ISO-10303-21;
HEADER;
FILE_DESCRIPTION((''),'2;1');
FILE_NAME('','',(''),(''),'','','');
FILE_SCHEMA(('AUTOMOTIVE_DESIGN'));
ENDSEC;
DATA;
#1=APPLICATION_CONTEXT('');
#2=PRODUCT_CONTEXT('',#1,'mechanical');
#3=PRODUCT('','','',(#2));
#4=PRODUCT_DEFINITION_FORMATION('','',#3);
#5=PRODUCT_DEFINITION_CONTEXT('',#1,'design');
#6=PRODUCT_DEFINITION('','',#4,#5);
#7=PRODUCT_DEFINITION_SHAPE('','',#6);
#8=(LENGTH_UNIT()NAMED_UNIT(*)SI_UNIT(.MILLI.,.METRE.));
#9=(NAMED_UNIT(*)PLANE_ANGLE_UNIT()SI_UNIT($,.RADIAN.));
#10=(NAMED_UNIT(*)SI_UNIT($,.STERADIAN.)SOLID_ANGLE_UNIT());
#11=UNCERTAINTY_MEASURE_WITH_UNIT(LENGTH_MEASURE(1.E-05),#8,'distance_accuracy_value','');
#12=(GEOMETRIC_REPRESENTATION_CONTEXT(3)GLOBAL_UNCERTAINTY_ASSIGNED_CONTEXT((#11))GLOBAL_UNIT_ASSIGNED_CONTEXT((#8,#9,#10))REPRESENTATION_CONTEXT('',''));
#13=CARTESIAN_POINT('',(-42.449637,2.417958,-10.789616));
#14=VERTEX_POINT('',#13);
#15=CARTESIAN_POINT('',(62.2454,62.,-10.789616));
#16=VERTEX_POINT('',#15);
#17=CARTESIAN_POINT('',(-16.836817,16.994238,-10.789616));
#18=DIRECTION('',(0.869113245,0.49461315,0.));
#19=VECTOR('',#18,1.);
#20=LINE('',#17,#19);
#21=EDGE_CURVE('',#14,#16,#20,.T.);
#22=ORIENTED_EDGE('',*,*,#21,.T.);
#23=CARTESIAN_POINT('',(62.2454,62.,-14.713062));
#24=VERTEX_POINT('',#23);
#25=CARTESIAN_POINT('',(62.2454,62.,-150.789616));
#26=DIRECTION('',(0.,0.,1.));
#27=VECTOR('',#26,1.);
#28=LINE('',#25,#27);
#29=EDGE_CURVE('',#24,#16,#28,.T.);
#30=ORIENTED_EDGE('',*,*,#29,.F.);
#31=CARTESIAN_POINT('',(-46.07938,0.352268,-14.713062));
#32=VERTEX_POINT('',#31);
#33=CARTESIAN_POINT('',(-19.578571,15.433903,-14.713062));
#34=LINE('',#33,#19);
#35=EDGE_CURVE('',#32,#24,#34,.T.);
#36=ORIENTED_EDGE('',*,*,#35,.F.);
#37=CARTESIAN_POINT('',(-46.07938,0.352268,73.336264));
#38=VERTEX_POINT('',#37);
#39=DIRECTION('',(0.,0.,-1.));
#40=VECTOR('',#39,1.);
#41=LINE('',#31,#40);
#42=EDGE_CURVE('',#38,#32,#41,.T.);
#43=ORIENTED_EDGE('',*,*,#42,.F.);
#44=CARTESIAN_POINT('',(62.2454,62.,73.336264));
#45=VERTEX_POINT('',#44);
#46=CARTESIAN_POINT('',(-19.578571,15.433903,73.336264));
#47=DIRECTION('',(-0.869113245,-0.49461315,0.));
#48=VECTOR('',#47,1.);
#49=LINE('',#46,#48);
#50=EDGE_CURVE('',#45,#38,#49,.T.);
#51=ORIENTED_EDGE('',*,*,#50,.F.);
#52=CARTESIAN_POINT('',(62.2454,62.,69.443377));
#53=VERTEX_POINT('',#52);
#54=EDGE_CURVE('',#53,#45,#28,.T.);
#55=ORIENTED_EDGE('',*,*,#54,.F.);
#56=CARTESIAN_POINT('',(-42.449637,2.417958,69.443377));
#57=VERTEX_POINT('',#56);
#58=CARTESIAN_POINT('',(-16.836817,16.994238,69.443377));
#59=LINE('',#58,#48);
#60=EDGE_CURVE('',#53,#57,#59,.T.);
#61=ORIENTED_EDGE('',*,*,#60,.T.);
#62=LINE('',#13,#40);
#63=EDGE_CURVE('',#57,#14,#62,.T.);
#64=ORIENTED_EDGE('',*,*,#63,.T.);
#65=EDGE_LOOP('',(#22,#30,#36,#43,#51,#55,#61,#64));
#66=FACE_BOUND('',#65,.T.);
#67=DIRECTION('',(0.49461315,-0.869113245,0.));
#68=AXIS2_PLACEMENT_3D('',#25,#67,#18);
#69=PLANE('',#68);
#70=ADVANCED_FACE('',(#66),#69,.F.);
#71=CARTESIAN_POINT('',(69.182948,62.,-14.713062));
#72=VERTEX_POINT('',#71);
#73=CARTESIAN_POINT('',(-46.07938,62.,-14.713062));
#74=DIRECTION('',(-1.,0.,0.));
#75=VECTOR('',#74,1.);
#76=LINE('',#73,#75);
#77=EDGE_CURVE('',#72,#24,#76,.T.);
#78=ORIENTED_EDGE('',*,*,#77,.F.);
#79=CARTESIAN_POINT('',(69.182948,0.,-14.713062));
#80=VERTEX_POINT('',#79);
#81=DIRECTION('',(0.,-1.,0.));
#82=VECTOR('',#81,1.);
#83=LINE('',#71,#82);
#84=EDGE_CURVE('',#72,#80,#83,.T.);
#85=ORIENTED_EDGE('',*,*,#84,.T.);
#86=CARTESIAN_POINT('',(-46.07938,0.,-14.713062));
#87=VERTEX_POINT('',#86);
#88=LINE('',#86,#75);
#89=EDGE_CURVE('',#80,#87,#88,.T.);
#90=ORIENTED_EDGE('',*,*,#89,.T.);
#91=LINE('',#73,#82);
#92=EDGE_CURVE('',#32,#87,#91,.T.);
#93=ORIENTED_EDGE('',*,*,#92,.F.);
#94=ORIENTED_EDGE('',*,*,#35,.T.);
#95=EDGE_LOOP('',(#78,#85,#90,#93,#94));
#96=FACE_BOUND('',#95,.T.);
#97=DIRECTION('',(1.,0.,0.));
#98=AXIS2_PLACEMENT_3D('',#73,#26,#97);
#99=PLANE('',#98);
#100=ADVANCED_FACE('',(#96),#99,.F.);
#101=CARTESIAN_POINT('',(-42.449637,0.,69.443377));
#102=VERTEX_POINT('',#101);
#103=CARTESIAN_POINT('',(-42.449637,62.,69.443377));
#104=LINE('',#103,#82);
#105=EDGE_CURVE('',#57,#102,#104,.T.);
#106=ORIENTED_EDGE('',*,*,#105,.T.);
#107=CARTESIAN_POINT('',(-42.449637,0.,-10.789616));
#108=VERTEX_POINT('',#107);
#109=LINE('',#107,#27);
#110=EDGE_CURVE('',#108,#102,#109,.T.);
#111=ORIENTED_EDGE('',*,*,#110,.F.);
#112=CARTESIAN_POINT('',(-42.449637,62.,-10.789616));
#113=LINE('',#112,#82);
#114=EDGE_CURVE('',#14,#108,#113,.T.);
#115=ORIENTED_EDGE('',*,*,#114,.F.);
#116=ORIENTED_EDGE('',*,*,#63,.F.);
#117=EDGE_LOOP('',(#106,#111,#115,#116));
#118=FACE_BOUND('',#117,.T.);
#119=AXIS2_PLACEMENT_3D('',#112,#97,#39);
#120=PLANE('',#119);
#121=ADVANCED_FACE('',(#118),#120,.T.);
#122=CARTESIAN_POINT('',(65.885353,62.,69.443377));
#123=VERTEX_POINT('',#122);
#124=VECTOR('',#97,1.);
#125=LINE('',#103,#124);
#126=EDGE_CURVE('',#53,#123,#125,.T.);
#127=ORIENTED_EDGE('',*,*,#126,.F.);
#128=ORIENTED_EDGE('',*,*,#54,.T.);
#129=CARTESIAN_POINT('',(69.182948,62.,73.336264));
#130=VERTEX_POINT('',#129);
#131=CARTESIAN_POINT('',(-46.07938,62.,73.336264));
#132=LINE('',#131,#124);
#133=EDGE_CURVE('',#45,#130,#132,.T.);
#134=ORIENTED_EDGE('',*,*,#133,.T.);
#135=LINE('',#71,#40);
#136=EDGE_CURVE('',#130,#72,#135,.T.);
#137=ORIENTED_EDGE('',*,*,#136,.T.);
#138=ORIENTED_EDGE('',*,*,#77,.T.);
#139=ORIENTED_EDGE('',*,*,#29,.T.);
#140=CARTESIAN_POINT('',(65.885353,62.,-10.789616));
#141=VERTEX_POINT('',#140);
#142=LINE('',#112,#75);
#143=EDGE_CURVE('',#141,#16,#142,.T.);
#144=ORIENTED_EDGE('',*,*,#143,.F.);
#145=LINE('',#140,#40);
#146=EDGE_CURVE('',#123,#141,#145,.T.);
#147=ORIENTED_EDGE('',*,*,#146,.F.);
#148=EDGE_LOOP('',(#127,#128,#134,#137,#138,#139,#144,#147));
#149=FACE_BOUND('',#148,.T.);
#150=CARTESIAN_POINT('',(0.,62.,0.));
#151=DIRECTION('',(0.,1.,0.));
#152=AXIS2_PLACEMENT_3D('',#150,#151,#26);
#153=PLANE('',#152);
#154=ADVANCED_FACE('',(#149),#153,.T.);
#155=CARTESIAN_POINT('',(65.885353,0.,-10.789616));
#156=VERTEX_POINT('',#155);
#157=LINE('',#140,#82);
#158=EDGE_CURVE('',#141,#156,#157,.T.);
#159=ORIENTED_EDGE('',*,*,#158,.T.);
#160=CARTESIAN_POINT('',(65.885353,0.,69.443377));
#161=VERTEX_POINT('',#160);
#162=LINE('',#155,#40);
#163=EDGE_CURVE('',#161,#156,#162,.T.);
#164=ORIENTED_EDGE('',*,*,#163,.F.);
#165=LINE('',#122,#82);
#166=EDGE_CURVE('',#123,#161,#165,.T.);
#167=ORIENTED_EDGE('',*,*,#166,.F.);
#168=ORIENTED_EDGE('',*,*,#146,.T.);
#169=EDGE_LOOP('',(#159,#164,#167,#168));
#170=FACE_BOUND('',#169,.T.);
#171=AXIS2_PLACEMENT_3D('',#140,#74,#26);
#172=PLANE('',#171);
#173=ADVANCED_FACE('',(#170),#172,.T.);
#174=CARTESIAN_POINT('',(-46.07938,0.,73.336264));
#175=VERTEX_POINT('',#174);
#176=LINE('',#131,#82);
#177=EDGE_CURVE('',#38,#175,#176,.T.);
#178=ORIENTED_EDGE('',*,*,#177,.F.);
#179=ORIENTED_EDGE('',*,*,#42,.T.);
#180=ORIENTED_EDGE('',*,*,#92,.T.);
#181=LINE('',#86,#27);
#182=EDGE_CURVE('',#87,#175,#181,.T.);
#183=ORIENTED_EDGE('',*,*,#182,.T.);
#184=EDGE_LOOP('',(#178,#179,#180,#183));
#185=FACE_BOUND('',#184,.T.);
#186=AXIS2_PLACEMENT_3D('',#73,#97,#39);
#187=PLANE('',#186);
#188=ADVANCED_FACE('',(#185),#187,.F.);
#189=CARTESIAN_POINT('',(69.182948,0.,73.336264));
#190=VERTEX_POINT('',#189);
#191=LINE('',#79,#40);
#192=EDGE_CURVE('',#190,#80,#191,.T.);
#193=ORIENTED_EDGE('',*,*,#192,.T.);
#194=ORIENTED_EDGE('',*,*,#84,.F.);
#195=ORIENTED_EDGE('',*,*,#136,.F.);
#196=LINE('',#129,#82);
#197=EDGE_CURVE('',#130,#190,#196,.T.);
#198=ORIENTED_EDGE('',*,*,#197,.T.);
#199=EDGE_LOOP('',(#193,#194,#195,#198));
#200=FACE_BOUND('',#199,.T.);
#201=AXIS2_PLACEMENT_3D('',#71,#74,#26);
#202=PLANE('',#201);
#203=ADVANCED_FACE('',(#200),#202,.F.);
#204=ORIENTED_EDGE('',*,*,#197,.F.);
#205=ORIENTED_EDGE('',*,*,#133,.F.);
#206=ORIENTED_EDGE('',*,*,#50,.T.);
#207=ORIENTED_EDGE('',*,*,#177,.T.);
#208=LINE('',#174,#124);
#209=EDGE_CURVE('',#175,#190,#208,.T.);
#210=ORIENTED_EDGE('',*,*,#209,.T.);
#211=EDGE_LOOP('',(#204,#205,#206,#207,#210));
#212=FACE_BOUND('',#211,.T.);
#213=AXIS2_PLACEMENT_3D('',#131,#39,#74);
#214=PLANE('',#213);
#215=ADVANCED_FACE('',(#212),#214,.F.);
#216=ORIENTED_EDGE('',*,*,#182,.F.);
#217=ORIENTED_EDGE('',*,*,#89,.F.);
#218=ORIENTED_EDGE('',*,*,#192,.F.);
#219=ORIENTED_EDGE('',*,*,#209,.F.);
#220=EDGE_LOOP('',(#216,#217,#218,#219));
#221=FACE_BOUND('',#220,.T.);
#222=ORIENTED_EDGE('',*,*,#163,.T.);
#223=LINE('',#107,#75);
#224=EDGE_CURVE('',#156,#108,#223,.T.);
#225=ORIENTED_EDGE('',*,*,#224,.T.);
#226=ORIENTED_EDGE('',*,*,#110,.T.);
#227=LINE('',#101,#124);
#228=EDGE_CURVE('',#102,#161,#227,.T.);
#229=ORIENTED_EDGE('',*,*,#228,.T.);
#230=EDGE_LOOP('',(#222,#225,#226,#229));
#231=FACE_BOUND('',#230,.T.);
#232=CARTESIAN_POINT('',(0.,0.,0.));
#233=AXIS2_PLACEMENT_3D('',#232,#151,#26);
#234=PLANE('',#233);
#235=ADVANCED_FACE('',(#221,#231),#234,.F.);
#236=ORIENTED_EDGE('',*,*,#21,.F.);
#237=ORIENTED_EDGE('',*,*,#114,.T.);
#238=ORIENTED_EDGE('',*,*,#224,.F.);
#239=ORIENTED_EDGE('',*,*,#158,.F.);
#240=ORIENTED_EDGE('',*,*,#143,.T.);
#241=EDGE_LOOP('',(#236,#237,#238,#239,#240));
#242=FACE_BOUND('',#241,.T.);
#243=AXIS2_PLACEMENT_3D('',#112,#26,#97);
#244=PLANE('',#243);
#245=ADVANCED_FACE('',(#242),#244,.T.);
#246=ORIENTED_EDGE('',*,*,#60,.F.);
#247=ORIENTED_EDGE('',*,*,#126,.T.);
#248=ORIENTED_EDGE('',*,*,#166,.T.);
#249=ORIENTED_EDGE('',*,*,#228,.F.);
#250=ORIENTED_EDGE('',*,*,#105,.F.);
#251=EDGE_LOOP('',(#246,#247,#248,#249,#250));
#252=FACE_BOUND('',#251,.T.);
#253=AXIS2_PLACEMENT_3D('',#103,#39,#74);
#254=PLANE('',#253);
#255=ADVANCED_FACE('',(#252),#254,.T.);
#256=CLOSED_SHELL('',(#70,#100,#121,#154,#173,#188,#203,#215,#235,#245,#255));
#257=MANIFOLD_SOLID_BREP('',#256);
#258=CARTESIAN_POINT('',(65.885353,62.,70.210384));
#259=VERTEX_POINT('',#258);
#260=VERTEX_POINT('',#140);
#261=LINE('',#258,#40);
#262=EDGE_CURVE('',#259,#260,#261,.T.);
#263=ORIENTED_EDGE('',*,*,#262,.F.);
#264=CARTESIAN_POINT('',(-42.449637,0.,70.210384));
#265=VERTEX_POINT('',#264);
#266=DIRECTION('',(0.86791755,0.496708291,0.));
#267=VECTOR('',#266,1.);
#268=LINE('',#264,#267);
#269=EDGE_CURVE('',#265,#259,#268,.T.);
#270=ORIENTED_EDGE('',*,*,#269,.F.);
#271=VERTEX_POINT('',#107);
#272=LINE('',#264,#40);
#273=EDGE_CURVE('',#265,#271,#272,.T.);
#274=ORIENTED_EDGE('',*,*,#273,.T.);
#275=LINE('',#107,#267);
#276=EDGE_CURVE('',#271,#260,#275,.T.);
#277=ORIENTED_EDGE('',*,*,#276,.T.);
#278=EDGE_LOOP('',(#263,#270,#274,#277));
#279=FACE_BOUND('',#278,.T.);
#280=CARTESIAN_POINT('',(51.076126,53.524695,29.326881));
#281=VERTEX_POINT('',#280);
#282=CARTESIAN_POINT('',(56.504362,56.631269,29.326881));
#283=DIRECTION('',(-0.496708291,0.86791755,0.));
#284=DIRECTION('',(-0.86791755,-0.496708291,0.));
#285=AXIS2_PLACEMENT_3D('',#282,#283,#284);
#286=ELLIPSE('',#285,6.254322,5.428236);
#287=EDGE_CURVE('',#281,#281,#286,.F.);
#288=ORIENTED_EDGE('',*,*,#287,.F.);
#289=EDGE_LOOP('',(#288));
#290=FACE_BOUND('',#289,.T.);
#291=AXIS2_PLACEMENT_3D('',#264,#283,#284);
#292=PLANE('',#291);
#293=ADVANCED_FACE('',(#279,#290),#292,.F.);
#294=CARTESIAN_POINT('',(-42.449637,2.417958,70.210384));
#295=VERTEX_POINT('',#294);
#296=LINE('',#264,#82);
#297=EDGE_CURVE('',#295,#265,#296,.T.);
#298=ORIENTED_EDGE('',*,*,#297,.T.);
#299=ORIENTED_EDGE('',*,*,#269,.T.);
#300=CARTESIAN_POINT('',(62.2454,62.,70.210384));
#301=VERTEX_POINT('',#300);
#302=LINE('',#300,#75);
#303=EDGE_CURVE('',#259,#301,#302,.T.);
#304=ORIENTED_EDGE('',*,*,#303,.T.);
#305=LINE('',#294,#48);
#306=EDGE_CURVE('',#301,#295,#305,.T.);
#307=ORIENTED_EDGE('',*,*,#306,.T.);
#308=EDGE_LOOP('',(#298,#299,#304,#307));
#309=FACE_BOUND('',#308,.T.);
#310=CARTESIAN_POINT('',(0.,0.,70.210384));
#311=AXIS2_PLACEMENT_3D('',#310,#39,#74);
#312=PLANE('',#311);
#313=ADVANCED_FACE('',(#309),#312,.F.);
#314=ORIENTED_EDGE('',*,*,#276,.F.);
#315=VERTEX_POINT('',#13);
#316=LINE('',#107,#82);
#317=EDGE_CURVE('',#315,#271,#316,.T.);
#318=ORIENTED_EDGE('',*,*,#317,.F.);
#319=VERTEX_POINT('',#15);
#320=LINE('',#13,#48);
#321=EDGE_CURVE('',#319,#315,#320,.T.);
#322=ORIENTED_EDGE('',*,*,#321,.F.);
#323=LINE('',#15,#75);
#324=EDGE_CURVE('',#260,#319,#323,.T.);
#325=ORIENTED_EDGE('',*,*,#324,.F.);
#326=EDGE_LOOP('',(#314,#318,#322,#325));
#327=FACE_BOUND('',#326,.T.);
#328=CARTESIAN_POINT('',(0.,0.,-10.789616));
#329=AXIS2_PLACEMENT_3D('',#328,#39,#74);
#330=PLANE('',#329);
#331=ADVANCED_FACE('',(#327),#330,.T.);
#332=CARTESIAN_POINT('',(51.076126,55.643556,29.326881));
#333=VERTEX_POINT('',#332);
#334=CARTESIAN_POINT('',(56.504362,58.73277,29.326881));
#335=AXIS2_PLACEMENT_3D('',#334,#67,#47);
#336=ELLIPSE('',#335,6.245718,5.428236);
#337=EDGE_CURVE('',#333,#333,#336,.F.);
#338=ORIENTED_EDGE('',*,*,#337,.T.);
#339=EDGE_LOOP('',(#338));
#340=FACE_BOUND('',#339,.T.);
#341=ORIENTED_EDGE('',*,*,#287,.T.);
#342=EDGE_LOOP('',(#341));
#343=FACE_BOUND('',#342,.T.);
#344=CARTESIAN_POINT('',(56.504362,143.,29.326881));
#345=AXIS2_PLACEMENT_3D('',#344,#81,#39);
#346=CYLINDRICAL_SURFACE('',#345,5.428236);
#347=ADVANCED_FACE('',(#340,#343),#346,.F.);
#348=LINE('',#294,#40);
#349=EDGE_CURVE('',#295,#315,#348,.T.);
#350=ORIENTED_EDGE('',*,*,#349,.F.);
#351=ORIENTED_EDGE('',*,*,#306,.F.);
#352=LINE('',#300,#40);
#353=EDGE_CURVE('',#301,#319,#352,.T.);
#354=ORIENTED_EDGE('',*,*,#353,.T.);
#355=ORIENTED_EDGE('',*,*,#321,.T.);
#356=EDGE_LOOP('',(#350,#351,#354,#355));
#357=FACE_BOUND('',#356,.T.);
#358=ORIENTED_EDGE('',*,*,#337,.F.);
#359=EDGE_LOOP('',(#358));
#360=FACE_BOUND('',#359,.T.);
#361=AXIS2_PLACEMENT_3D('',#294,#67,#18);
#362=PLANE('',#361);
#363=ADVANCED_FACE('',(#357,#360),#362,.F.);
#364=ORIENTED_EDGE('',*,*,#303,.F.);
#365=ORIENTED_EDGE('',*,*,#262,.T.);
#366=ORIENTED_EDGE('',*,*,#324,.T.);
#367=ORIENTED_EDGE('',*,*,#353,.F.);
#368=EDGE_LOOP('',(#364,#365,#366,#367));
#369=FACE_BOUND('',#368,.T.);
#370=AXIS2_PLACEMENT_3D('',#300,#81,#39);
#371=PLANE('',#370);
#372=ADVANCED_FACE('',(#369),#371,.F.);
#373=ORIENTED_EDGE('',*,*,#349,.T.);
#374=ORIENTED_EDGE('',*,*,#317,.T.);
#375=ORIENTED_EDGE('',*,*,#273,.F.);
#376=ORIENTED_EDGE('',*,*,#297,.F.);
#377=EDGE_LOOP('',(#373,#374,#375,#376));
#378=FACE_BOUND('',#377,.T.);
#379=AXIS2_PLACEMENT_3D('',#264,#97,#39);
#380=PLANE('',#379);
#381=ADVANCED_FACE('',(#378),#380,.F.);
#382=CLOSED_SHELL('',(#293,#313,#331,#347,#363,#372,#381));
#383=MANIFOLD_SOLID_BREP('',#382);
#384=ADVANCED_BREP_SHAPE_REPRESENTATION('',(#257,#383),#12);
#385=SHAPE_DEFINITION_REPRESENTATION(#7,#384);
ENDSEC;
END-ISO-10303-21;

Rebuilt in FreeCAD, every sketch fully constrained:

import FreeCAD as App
import Part
import Sketcher
Q = App.Units.Quantity

doc = App.newDocument("Part")
body = doc.addObject("PartDesign::Body", "Body")

# Sketch on XZ plane
sketch1 = body.newObject("Sketcher::SketchObject", "Sketch")
sketch1.AttachmentSupport = (doc.getObject("XZ_Plane"), [""])
sketch1.MapMode = "FlatFace"
sketch1.addGeometry(Part.LineSegment(App.Vector(-46, -15, 0), App.Vector(-46, 73, 0)), False)
sketch1.addGeometry(Part.LineSegment(App.Vector(-46, 73, 0), App.Vector(69, 73, 0)), False)
sketch1.addGeometry(Part.LineSegment(App.Vector(69, 73, 0), App.Vector(69, -15, 0)), False)
sketch1.addGeometry(Part.LineSegment(App.Vector(69, -15, 0), App.Vector(-46, -15, 0)), False)
sketch1.addGeometry(Part.LineSegment(App.Vector(66, 69, 0), App.Vector(-42, 69, 0)), False)
sketch1.addGeometry(Part.LineSegment(App.Vector(-42, 69, 0), App.Vector(-42, -11, 0)), False)
sketch1.addGeometry(Part.LineSegment(App.Vector(-42, -11, 0), App.Vector(66, -11, 0)), False)
sketch1.addGeometry(Part.LineSegment(App.Vector(66, -11, 0), App.Vector(66, 69, 0)), False)
sketch1.addConstraint(Sketcher.Constraint("Coincident", 0, 2, 1, 1))
sketch1.addConstraint(Sketcher.Constraint("Coincident", 1, 2, 2, 1))
sketch1.addConstraint(Sketcher.Constraint("Coincident", 2, 2, 3, 1))
sketch1.addConstraint(Sketcher.Constraint("Coincident", 3, 2, 0, 1))
sketch1.addConstraint(Sketcher.Constraint("Coincident", 4, 2, 5, 1))
sketch1.addConstraint(Sketcher.Constraint("Coincident", 5, 2, 6, 1))
sketch1.addConstraint(Sketcher.Constraint("Coincident", 6, 2, 7, 1))
sketch1.addConstraint(Sketcher.Constraint("Coincident", 7, 2, 4, 1))
sketch1.addConstraint(Sketcher.Constraint("Vertical", 0))
sketch1.addConstraint(Sketcher.Constraint("Horizontal", 1))
sketch1.addConstraint(Sketcher.Constraint("Vertical", 2))
sketch1.addConstraint(Sketcher.Constraint("Horizontal", 3))
sketch1.addConstraint(Sketcher.Constraint("Horizontal", 4))
sketch1.addConstraint(Sketcher.Constraint("Vertical", 5))
sketch1.addConstraint(Sketcher.Constraint("Horizontal", 6))
sketch1.addConstraint(Sketcher.Constraint("Vertical", 7))
sketch1.addConstraint(Sketcher.Constraint("DistanceX", 1, 1, 1, 2, Q("115.262329 mm")))
sketch1.addConstraint(Sketcher.Constraint("DistanceX", 4, 2, 4, 1, Q("108.334991 mm")))
sketch1.addConstraint(Sketcher.Constraint("DistanceY", 0, 1, 0, 2, Q("88.049326 mm")))
sketch1.addConstraint(Sketcher.Constraint("DistanceY", 5, 2, 5, 1, Q("80.232993 mm")))
sketch1.addConstraint(Sketcher.Constraint("DistanceX", 0, 2, -1, 1, Q("46.07938 mm")))
sketch1.addConstraint(Sketcher.Constraint("DistanceY", 3, 2, 4, 2, Q("84.156439 mm")))
sketch1.addConstraint(Sketcher.Constraint("DistanceY", -1, 1, 0, 2, Q("73.336264 mm")))
sketch1.addConstraint(Sketcher.Constraint("DistanceX", 4, 2, -1, 1, Q("42.449637 mm")))
pad1 = body.newObject("PartDesign::Pad", "Pad")
pad1.Profile = sketch1
pad1.Length = 62
pad1.Reversed = True

# Sketch on XY plane
sketch2 = body.newObject("Sketcher::SketchObject", "Sketch001")
sketch2.AttachmentSupport = (doc.getObject("XY_Plane"), [""])
sketch2.MapMode = "FlatFace"
sketch2.AttachmentOffset = App.Placement(App.Vector(0, 0, -10.789616), App.Rotation())
sketch2.addGeometry(Part.LineSegment(App.Vector(-48, -1, 0), App.Vector(62, 62, 0)), False)
sketch2.addGeometry(Part.LineSegment(App.Vector(62, 62, 0), App.Vector(74, 72, 0)), False)
sketch2.addGeometry(Part.LineSegment(App.Vector(74, 72, 0), App.Vector(-65, 83, 0)), False)
sketch2.addGeometry(Part.LineSegment(App.Vector(-65, 83, 0), App.Vector(-48, -1, 0)), False)
sketch2.addConstraint(Sketcher.Constraint("Coincident", 0, 2, 1, 1))
sketch2.addConstraint(Sketcher.Constraint("Coincident", 1, 2, 2, 1))
sketch2.addConstraint(Sketcher.Constraint("Coincident", 2, 2, 3, 1))
sketch2.addConstraint(Sketcher.Constraint("Coincident", 3, 2, 0, 1))
sketch2.addConstraint(Sketcher.Constraint("DistanceY", -1, 1, 0, 2, Q("62 mm")))
sketch2.addConstraint(Sketcher.Constraint("DistanceX", -1, 1, 0, 2, Q("62.2454 mm")))
sketch2.addConstraint(Sketcher.Constraint("DistanceY", -1, 1, 2, 2, Q("83.1621 mm")))
sketch2.addConstraint(Sketcher.Constraint("Distance", 2, Q("139.24927 mm")))
sketch2.addConstraint(Sketcher.Constraint("DistanceX", -1, 1, 1, 2, Q("74.178742 mm")))
sketch2.addConstraint(Sketcher.Constraint("DistanceY", 3, 2, -1, 1, Q("0.73448 mm")))
sketch2.addConstraint(Sketcher.Constraint("DistanceX", 2, 2, 1, 2, Q("138.772189 mm")))
sketch2.addConstraint(Sketcher.Constraint("DistanceX", 2, 2, 3, 2, Q("16.604481 mm")))
pocket1 = body.newObject("PartDesign::Pocket", "Pocket")
pocket1.Profile = sketch2
pocket1.Type = "ThroughAll"
pocket1.Midplane = True
body2 = doc.addObject("PartDesign::Body", "Body001")

# Sketch on XY plane
sketch3 = body2.newObject("Sketcher::SketchObject", "Sketch002")
sketch3.AttachmentSupport = (doc.getObject("XY_Plane001"), [""])
sketch3.MapMode = "FlatFace"
sketch3.AttachmentOffset = App.Placement(App.Vector(0, 0, -10.789616), App.Rotation())
sketch3.addGeometry(Part.LineSegment(App.Vector(-42.4, 0, 0), App.Vector(65.9, 62, 0)), False)
sketch3.addGeometry(Part.LineSegment(App.Vector(65.9, 62, 0), App.Vector(62.2, 62, 0)), False)
sketch3.addGeometry(Part.LineSegment(App.Vector(62.2, 62, 0), App.Vector(-42.4, 2.4, 0)), False)
sketch3.addGeometry(Part.LineSegment(App.Vector(-42.4, 2.4, 0), App.Vector(-42.4, 0, 0)), False)
sketch3.addConstraint(Sketcher.Constraint("Coincident", 0, 2, 1, 1))
sketch3.addConstraint(Sketcher.Constraint("Coincident", 1, 2, 2, 1))
sketch3.addConstraint(Sketcher.Constraint("Coincident", 2, 2, 3, 1))
sketch3.addConstraint(Sketcher.Constraint("Coincident", 3, 2, 0, 1))
sketch3.addConstraint(Sketcher.Constraint("Horizontal", 1))
sketch3.addConstraint(Sketcher.Constraint("Vertical", 3))
sketch3.addConstraint(Sketcher.Constraint("PointOnObject", 3, 2, -1))
sketch3.addConstraint(Sketcher.Constraint("DistanceY", -1, 1, 0, 2, Q("62 mm")))
sketch3.addConstraint(Sketcher.Constraint("DistanceX", -1, 1, 1, 2, Q("62.2454 mm")))
sketch3.addConstraint(Sketcher.Constraint("DistanceX", 1, 2, 1, 1, Q("3.639954 mm")))
sketch3.addConstraint(Sketcher.Constraint("DistanceY", 3, 2, 3, 1, Q("2.417958 mm")))
sketch3.addConstraint(Sketcher.Constraint("DistanceX", 2, 2, 0, 2, Q("108.334991 mm")))
pad2 = body2.newObject("PartDesign::Pad", "Pad001")
pad2.Profile = sketch3
pad2.Length = 81

# Sketch on XZ plane
sketch4 = body2.newObject("Sketcher::SketchObject", "Sketch003")
sketch4.AttachmentSupport = (doc.getObject("XZ_Plane001"), [""])
sketch4.MapMode = "FlatFace"
sketch4.addGeometry(Part.Circle(App.Vector(57, 29, 0), App.Vector(0, 0, 1), 5), False)
sketch4.addConstraint(Sketcher.Constraint("Diameter", 0, Q("10.856472 mm")))
sketch4.addConstraint(Sketcher.Constraint("DistanceX", -1, 1, 0, 3, Q("56.504362 mm")))
sketch4.addConstraint(Sketcher.Constraint("DistanceY", -1, 1, 0, 3, Q("29.326881 mm")))
pocket2 = body2.newObject("PartDesign::Pocket", "Pocket001")
pocket2.Profile = sketch4
pocket2.Length = 143

doc.recompute()
